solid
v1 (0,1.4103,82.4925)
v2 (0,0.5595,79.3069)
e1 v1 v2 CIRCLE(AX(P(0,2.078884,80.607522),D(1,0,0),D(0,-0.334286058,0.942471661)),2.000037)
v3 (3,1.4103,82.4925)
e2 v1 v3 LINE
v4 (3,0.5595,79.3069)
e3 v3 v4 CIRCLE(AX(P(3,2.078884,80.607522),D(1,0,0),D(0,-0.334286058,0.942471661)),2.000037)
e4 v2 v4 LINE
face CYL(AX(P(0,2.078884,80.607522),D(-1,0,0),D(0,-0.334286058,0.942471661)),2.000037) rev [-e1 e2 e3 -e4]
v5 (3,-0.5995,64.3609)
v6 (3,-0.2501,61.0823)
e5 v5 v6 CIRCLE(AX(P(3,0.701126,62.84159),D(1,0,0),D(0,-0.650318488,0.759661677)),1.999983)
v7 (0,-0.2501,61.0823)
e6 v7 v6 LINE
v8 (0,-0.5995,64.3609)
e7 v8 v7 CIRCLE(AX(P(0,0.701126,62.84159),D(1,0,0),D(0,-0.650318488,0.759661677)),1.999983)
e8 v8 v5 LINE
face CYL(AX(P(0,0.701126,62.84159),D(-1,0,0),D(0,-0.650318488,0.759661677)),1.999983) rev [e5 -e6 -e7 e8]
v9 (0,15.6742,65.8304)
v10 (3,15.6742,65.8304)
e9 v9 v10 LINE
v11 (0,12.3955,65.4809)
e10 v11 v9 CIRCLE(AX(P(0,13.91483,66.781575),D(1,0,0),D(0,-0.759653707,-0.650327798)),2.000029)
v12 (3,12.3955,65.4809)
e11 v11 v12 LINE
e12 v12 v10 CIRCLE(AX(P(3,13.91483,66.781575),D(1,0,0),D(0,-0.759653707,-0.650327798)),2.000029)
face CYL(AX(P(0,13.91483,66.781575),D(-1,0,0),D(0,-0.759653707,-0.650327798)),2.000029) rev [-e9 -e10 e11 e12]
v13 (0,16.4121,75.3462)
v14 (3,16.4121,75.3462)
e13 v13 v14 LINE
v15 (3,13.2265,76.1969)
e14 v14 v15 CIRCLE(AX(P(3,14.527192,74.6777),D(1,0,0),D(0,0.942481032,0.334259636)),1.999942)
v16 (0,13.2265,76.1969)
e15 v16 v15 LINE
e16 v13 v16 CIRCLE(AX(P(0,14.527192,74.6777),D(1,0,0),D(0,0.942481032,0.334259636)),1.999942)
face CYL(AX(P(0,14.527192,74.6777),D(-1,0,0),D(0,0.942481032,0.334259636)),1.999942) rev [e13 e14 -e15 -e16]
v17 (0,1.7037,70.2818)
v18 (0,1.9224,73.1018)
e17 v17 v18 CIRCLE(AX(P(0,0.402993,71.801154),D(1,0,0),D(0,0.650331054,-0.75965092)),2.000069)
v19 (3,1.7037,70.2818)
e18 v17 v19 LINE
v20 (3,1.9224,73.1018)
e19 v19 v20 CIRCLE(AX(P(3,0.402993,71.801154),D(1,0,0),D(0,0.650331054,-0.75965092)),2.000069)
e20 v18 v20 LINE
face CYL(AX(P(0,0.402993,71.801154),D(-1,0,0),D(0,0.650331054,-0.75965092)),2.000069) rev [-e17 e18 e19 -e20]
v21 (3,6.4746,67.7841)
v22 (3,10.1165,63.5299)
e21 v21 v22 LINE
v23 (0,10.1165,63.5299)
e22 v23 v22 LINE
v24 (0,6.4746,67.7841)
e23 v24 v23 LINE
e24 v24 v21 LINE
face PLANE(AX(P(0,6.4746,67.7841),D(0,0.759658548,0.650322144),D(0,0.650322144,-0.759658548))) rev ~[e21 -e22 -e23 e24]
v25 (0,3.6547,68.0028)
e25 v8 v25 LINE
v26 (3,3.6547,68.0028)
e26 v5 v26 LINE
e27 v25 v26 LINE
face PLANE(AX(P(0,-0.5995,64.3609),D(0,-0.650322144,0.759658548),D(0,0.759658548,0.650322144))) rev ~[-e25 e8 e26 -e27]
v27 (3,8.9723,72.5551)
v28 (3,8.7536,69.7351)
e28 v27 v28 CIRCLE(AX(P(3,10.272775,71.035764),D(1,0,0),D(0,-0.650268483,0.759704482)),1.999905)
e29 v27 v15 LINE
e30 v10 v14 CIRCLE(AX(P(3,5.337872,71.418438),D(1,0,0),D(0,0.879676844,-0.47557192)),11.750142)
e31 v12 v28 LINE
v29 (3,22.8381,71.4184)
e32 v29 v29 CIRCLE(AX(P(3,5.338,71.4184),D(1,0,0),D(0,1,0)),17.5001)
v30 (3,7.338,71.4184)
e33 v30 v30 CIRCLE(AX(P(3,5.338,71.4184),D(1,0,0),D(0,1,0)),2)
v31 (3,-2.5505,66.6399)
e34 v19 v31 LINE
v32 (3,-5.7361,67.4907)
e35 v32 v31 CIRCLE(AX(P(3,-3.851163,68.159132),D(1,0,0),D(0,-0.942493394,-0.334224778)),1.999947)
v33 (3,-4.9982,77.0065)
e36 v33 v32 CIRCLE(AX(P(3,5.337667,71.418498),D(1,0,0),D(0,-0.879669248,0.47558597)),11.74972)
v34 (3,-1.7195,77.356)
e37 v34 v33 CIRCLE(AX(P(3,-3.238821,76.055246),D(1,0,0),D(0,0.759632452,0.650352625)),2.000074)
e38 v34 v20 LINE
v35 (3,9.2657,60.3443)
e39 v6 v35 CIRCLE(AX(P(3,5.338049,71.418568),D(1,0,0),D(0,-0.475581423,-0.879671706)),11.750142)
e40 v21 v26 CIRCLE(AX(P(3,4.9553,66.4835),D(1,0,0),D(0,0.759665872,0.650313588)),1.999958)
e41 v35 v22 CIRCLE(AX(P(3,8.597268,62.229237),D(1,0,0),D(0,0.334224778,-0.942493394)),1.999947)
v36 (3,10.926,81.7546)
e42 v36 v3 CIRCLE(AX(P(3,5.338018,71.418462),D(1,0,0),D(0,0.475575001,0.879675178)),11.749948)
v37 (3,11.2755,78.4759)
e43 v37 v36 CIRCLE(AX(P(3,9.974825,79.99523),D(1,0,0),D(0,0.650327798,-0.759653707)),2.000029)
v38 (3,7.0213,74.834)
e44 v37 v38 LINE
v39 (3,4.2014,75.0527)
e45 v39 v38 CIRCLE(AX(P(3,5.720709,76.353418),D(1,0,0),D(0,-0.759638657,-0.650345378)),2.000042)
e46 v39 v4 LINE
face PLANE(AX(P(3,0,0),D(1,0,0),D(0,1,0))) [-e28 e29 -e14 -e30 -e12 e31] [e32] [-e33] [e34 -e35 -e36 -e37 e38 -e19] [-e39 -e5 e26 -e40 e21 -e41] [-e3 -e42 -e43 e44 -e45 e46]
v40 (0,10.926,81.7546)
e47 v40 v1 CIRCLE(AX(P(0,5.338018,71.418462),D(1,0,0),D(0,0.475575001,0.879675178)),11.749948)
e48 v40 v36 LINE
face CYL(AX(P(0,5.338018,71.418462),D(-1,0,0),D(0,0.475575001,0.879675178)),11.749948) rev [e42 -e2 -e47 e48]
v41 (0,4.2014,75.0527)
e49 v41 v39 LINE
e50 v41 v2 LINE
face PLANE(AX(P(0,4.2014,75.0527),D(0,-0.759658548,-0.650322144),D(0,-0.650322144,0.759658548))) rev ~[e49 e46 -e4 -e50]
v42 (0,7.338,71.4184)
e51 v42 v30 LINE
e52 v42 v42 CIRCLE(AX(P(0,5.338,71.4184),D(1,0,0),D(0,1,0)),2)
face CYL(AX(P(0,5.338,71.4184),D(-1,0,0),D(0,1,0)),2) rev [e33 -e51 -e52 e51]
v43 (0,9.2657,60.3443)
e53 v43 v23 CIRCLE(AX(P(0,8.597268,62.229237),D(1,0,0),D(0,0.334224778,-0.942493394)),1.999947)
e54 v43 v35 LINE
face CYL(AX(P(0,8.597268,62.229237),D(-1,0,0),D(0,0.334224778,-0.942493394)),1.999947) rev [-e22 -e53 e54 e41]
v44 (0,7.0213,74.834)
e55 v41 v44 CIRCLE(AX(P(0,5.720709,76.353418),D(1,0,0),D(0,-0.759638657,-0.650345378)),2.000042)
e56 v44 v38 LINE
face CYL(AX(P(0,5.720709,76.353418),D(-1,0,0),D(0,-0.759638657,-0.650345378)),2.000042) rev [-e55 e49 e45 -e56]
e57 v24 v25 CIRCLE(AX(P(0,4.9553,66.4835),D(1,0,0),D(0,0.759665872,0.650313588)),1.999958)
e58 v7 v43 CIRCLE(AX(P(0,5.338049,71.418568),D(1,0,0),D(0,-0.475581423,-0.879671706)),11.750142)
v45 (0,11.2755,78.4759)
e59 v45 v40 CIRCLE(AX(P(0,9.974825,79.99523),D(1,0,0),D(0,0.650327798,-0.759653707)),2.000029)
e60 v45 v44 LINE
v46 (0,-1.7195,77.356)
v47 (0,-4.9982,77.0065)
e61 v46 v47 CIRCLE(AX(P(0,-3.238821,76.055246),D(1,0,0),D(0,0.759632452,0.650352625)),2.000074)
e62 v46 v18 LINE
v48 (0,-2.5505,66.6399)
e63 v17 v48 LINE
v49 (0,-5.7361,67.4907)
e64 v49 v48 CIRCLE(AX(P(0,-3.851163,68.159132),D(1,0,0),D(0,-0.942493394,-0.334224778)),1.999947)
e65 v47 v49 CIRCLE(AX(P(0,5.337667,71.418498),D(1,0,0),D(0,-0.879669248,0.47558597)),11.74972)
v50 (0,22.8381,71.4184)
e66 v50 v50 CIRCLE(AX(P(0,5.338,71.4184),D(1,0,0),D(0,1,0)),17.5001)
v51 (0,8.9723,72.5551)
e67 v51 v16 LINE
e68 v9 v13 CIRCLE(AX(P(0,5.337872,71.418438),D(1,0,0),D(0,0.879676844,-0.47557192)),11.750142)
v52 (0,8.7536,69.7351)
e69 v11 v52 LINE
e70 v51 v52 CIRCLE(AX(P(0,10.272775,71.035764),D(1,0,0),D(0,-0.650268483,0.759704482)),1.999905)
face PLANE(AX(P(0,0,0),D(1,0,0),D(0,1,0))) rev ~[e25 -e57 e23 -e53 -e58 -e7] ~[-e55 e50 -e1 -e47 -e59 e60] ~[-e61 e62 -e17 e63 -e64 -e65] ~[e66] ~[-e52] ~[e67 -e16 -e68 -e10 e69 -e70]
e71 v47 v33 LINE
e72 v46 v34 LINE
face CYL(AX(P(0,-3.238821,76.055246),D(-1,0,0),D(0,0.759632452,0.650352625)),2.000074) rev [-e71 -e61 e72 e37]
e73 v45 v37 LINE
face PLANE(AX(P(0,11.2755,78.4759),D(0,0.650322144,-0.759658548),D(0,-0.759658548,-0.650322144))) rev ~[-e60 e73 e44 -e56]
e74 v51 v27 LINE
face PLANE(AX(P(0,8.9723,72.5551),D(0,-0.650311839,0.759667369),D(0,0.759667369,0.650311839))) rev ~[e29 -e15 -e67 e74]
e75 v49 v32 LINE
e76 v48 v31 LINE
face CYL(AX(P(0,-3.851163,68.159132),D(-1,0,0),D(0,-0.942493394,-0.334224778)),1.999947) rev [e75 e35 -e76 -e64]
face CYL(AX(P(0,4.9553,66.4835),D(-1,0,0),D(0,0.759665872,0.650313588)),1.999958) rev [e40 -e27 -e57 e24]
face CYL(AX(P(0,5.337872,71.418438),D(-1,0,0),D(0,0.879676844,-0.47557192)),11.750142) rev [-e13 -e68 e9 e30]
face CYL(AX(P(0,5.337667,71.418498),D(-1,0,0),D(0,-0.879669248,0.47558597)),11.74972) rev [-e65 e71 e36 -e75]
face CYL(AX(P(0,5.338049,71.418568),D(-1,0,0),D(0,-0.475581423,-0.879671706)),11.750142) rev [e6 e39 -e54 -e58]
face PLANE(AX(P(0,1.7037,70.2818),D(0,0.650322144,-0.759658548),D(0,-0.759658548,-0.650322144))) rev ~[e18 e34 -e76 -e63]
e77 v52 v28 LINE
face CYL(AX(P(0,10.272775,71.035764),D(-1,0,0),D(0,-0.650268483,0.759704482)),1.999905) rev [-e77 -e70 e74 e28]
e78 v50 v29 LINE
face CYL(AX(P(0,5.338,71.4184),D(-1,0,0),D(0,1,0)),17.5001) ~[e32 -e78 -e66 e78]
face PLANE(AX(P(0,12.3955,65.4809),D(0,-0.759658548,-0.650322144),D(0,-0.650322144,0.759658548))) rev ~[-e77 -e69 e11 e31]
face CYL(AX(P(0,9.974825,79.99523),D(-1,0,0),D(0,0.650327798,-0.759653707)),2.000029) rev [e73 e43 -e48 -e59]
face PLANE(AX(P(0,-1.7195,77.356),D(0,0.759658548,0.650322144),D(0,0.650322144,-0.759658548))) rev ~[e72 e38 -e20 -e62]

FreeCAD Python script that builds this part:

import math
import FreeCAD as App
import Part
import Sketcher
from FreeCAD import Vector
Q = App.Units.Quantity

doc = App.newDocument("Part")
body = doc.addObject("PartDesign::Body", "Body")

# Sketch on YZ plane
sketch1 = body.newObject("Sketcher::SketchObject", "Sketch")
sketch1.AttachmentSupport = (doc.getObject("YZ_Plane"), [""])
sketch1.MapMode = "FlatFace"
sketch1.addGeometry([
    Part.Circle(Vector(5.3, 71.4, 0), Vector(0, 0, 1), 17.5),  # 0
    Part.ArcOfCircle(Part.Circle(Vector(5.3, 71.4, 0), Vector(0, 0, 1), 11.8), math.radians(-118), math.radians(-70)),  # 1
    Part.ArcOfCircle(Part.Circle(Vector(0.7, 62.8, 0), Vector(0, 0, 1), 2), math.radians(131), math.radians(242)),  # 2
    Part.LineSegment(Vector(-0.6, 64.4, 0), Vector(3.7, 68, 0)),  # 3
    Part.ArcOfCircle(Part.Circle(Vector(5, 66.5, 0), Vector(0, 0, 1), 2), math.radians(41), math.radians(131)),  # 4
    Part.LineSegment(Vector(6.5, 67.8, 0), Vector(10.1, 63.5, 0)),  # 5
    Part.ArcOfCircle(Part.Circle(Vector(8.6, 62.2, 0), Vector(0, 0, 1), 2), math.radians(-70), math.radians(41)),  # 6
    Part.ArcOfCircle(Part.Circle(Vector(5.3, 71.4, 0), Vector(0, 0, 1), 11.8), math.radians(-28), math.radians(20)),  # 7
    Part.ArcOfCircle(Part.Circle(Vector(13.9, 66.8, 0), Vector(0, 0, 1), 2), math.radians(-139), math.radians(-28)),  # 8
    Part.LineSegment(Vector(12.4, 65.5, 0), Vector(8.8, 69.7, 0)),  # 9
    Part.ArcOfCircle(Part.Circle(Vector(10.3, 71, 0), Vector(0, 0, 1), 2), math.radians(131), math.radians(221)),  # 10
    Part.LineSegment(Vector(9, 72.6, 0), Vector(13.2, 76.2, 0)),  # 11
    Part.ArcOfCircle(Part.Circle(Vector(14.5, 74.7, 0), Vector(0, 0, 1), 2), math.radians(20), math.radians(131)),  # 12
    Part.ArcOfCircle(Part.Circle(Vector(5.3, 71.4, 0), Vector(0, 0, 1), 11.7), math.radians(152), math.radians(200)),  # 13
    Part.ArcOfCircle(Part.Circle(Vector(-3.2, 76.1, 0), Vector(0, 0, 1), 2), math.radians(41), math.radians(152)),  # 14
    Part.LineSegment(Vector(-1.7, 77.4, 0), Vector(1.9, 73.1, 0)),  # 15
    Part.ArcOfCircle(Part.Circle(Vector(0.4, 71.8, 0), Vector(0, 0, 1), 2), math.radians(-49), math.radians(41)),  # 16
    Part.LineSegment(Vector(1.7, 70.3, 0), Vector(-2.6, 66.6, 0)),  # 17
    Part.ArcOfCircle(Part.Circle(Vector(-3.9, 68.2, 0), Vector(0, 0, 1), 2), math.radians(-160), math.radians(-49)),  # 18
    Part.Circle(Vector(5.3, 71.4, 0), Vector(0, 0, 1), 2),  # 19
    Part.ArcOfCircle(Part.Circle(Vector(5.7, 76.4, 0), Vector(0, 0, 1), 2), math.radians(-139), math.radians(-49)),  # 20
    Part.LineSegment(Vector(4.2, 75.1, 0), Vector(0.6, 79.3, 0)),  # 21
    Part.ArcOfCircle(Part.Circle(Vector(2.1, 80.6, 0), Vector(0, 0, 1), 2), math.radians(110), math.radians(221)),  # 22
    Part.ArcOfCircle(Part.Circle(Vector(5.3, 71.4, 0), Vector(0, 0, 1), 11.7), math.radians(62), math.radians(110)),  # 23
    Part.ArcOfCircle(Part.Circle(Vector(10, 80, 0), Vector(0, 0, 1), 2), math.radians(-49), math.radians(62)),  # 24
    Part.LineSegment(Vector(11.3, 78.5, 0), Vector(7, 74.8, 0)),  # 25
], False)
sketch1.addConstraint([
    Sketcher.Constraint("Tangent", 1, 1, 2, 2),
    Sketcher.Constraint("Tangent", 2, 1, 3, 1),
    Sketcher.Constraint("Tangent", 3, 2, 4, 2),
    Sketcher.Constraint("Tangent", 4, 1, 5, 1),
    Sketcher.Constraint("Tangent", 5, 2, 6, 2),
    Sketcher.Constraint("Tangent", 6, 1, 1, 2),
    Sketcher.Constraint("Tangent", 7, 1, 8, 2),
    Sketcher.Constraint("Tangent", 8, 1, 9, 1),
    Sketcher.Constraint("Tangent", 9, 2, 10, 2),
    Sketcher.Constraint("Tangent", 10, 1, 11, 1),
    Sketcher.Constraint("Tangent", 11, 2, 12, 2),
    Sketcher.Constraint("Tangent", 12, 1, 7, 2),
    Sketcher.Constraint("Tangent", 13, 1, 14, 2),
    Sketcher.Constraint("Tangent", 14, 1, 15, 1),
    Sketcher.Constraint("Tangent", 15, 2, 16, 2),
    Sketcher.Constraint("Tangent", 16, 1, 17, 1),
    Sketcher.Constraint("Tangent", 17, 2, 18, 2),
    Sketcher.Constraint("Tangent", 18, 1, 13, 2),
    Sketcher.Constraint("Tangent", 20, 1, 21, 1),
    Sketcher.Constraint("Tangent", 21, 2, 22, 2),
    Sketcher.Constraint("Tangent", 22, 1, 23, 2),
    Sketcher.Constraint("Tangent", 23, 1, 24, 2),
    Sketcher.Constraint("Tangent", 24, 1, 25, 1),
    Sketcher.Constraint("Tangent", 25, 2, 20, 2),
    Sketcher.Constraint("Coincident", 1, 3, 0, 3),
    Sketcher.Constraint("Coincident", 7, 3, 0, 3),
    Sketcher.Constraint("Coincident", 13, 3, 0, 3),
    Sketcher.Constraint("Coincident", 19, 3, 0, 3),
    Sketcher.Constraint("Coincident", 23, 3, 0, 3),
    Sketcher.Constraint("Equal", 2, 4),
    Sketcher.Constraint("Equal", 4, 6),
    Sketcher.Constraint("Equal", 1, 7),
    Sketcher.Constraint("Equal", 6, 8),
    Sketcher.Constraint("Equal", 8, 10),
    Sketcher.Constraint("Equal", 10, 12),
    Sketcher.Constraint("Equal", 7, 13),
    Sketcher.Constraint("Equal", 12, 14),
    Sketcher.Constraint("Equal", 14, 16),
    Sketcher.Constraint("Equal", 16, 18),
    Sketcher.Constraint("Equal", 18, 19),
    Sketcher.Constraint("Equal", 19, 20),
    Sketcher.Constraint("Equal", 20, 22),
    Sketcher.Constraint("Equal", 13, 23),
    Sketcher.Constraint("Equal", 22, 24),
    Sketcher.Constraint("Perpendicular", 3, 5),
    Sketcher.Constraint("Parallel", 5, 9),
    Sketcher.Constraint("Perpendicular", 9, 11),
    Sketcher.Constraint("Perpendicular", 11, 15),
    Sketcher.Constraint("Perpendicular", 15, 17),
    Sketcher.Constraint("Perpendicular", 17, 21),
    Sketcher.Constraint("Perpendicular", 21, 25),
    Sketcher.Constraint("Equal", 3, 5),
    Sketcher.Constraint("Equal", 5, 9),
    Sketcher.Constraint("Equal", 9, 11),
    Sketcher.Constraint("Equal", 11, 15),
    Sketcher.Constraint("Equal", 15, 17),
    Sketcher.Constraint("Equal", 17, 21),
    Sketcher.Constraint("Equal", 21, 25),
    Sketcher.Constraint("Diameter", 19, Q("4 mm")),
    Sketcher.Constraint("Radius", 1, Q("11.75 mm")),
    Sketcher.Constraint("Distance", 11, Q("5.6 mm")),
    Sketcher.Constraint("Diameter", 0, Q("35.0002 mm")),
    Sketcher.Constraint("DistanceY", -1, 1, 5, 2, Q("63.53 mm")),
    Sketcher.Constraint("DistanceY", -1, 1, 17, 2, Q("66.64 mm")),
    Sketcher.Constraint("DistanceX", -1, 1, 0, 3, Q("5.338 mm")),
])
pad1 = body.newObject("PartDesign::Pad", "Pad")
pad1.Profile = sketch1
pad1.Length = 3

doc.recompute()
